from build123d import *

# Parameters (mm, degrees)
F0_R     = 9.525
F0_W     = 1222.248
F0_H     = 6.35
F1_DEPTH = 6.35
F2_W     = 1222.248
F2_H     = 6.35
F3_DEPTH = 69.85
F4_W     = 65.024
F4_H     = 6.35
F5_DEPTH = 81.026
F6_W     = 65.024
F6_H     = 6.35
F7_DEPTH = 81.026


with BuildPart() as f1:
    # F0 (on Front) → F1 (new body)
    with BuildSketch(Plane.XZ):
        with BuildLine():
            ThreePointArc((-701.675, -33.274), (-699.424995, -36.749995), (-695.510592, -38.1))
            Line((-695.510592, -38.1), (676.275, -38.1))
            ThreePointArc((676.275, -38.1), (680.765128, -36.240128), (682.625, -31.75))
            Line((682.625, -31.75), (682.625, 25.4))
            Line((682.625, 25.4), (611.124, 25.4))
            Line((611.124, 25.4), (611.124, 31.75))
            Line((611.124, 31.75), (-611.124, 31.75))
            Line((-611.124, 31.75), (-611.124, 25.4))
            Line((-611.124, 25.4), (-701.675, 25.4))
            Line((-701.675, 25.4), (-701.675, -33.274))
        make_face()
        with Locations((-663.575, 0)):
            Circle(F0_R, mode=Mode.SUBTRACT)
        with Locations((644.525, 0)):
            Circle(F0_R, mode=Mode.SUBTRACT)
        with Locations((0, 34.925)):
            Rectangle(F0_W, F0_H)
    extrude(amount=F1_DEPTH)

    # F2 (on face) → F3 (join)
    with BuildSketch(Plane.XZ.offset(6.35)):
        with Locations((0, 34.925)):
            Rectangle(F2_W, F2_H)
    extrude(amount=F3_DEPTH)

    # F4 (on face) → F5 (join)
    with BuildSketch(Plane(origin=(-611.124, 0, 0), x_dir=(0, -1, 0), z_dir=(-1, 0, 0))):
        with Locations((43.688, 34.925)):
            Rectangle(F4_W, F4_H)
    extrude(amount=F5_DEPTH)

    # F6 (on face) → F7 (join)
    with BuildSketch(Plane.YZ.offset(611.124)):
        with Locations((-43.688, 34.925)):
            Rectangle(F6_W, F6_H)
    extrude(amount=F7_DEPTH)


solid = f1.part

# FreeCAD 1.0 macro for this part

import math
import FreeCAD as App
import Part
import Sketcher
Q = App.Units.Quantity

doc = App.newDocument("Part")
body = doc.addObject("PartDesign::Body", "Body")

# Sketch on XZ plane
sketch1 = body.newObject("Sketcher::SketchObject", "Sketch")
sketch1.AttachmentSupport = (doc.getObject("XZ_Plane"), [""])
sketch1.MapMode = "FlatFace"
sketch1.addGeometry(Part.ArcOfCircle(Part.Circle(App.Vector(-695.510592, -31.75, 0), App.Vector(0, 0, 1), 6.35), math.radians(-166.113459), math.radians(-89.999999)), False)
sketch1.addGeometry(Part.LineSegment(App.Vector(-695.510592, -38.1, 0), App.Vector(676.275, -38.1, 0)), False)
sketch1.addGeometry(Part.ArcOfCircle(Part.Circle(App.Vector(676.275, -31.75, 0), App.Vector(0, 0, 1), 6.35), math.radians(-89.999998), math.radians(-0.000002)), False)
sketch1.addGeometry(Part.LineSegment(App.Vector(682.625, -31.75, 0), App.Vector(682.625, 25.4, 0)), False)
sketch1.addGeometry(Part.LineSegment(App.Vector(682.625, 25.4, 0), App.Vector(611.124, 25.4, 0)), False)
sketch1.addGeometry(Part.LineSegment(App.Vector(611.124, 25.4, 0), App.Vector(611.124, 38.1, 0)), False)
sketch1.addGeometry(Part.LineSegment(App.Vector(611.124, 38.1, 0), App.Vector(-611.124, 38.1, 0)), False)
sketch1.addGeometry(Part.LineSegment(App.Vector(-611.124, 38.1, 0), App.Vector(-611.124, 25.4, 0)), False)
sketch1.addGeometry(Part.LineSegment(App.Vector(-611.124, 25.4, 0), App.Vector(-701.675, 25.4, 0)), False)
sketch1.addGeometry(Part.LineSegment(App.Vector(-701.675, 25.4, 0), App.Vector(-701.675, -33.274, 0)), False)
sketch1.addGeometry(Part.Circle(App.Vector(-663.575, 0, 0), App.Vector(0, 0, 1), 9.525), False)
sketch1.addGeometry(Part.Circle(App.Vector(644.525, 0, 0), App.Vector(0, 0, 1), 9.525), False)
sketch1.addConstraint(Sketcher.Constraint("Tangent", 0, 2, 1, 1))
sketch1.addConstraint(Sketcher.Constraint("Tangent", 1, 2, 2, 1))
sketch1.addConstraint(Sketcher.Constraint("Tangent", 2, 2, 3, 1))
sketch1.addConstraint(Sketcher.Constraint("Coincident", 3, 2, 4, 1))
sketch1.addConstraint(Sketcher.Constraint("Coincident", 4, 2, 5, 1))
sketch1.addConstraint(Sketcher.Constraint("Coincident", 5, 2, 6, 1))
sketch1.addConstraint(Sketcher.Constraint("Coincident", 6, 2, 7, 1))
sketch1.addConstraint(Sketcher.Constraint("Coincident", 7, 2, 8, 1))
sketch1.addConstraint(Sketcher.Constraint("Coincident", 8, 2, 9, 1))
sketch1.addConstraint(Sketcher.Constraint("Coincident", 9, 2, 0, 1))
sketch1.addConstraint(Sketcher.Constraint("Horizontal", 1))
sketch1.addConstraint(Sketcher.Constraint("Vertical", 3))
sketch1.addConstraint(Sketcher.Constraint("Horizontal", 4))
sketch1.addConstraint(Sketcher.Constraint("Vertical", 5))
sketch1.addConstraint(Sketcher.Constraint("Horizontal", 6))
sketch1.addConstraint(Sketcher.Constraint("Vertical", 7))
sketch1.addConstraint(Sketcher.Constraint("Horizontal", 8))
sketch1.addConstraint(Sketcher.Constraint("Vertical", 9))
sketch1.addConstraint(Sketcher.Constraint("Equal", 0, 2))
sketch1.addConstraint(Sketcher.Constraint("Equal", 10, 11))
sketch1.addConstraint(Sketcher.Constraint("Symmetric", 4, 2, 7, 2, -2))
sketch1.addConstraint(Sketcher.Constraint("PointOnObject", 10, 3, -1))
sketch1.addConstraint(Sketcher.Constraint("PointOnObject", 11, 3, -1))
sketch1.addConstraint(Sketcher.Constraint("Diameter", 10, Q("0.75 in")))
sketch1.addConstraint(Sketcher.Constraint("Radius", 0, Q("0.25 in")))
sketch1.addConstraint(Sketcher.Constraint("DistanceY", 5, 1, 5, 2, Q("0.5 in")))
sketch1.addConstraint(Sketcher.Constraint("DistanceY", -1, 1, 3, 2, Q("1 in")))
sketch1.addConstraint(Sketcher.Constraint("DistanceX", 10, 3, 2, 2, Q("53 in")))
sketch1.addConstraint(Sketcher.Constraint("DistanceY", 0, 2, 6, 2, Q("3 in")))
sketch1.addConstraint(Sketcher.Constraint("DistanceX", 6, 2, 6, 1, Q("48.12 in")))
sketch1.addConstraint(Sketcher.Constraint("DistanceY", 9, 2, 9, 1, Q("2.31 in")))
sketch1.addConstraint(Sketcher.Constraint("DistanceX", 10, 3, 11, 3, Q("51.5 in")))
sketch1.addConstraint(Sketcher.Constraint("DistanceX", 8, 2, 10, 3, Q("1.5 in")))
sketch1.addConstraint(Sketcher.Constraint("DistanceX", 4, 2, 4, 1, Q("2.815 in")))
pad1 = body.newObject("PartDesign::Pad", "Pad")
pad1.Profile = sketch1
pad1.Length = Q("0.25 in")

# Sketch on XZ plane
sketch2 = body.newObject("Sketcher::SketchObject", "Sketch001")
sketch2.AttachmentSupport = (doc.getObject("XZ_Plane"), [""])
sketch2.MapMode = "FlatFace"
sketch2.AttachmentOffset = App.Placement(App.Vector(0, 0, 0.25 * 25.4), App.Rotation())
sketch2.addGeometry(Part.LineSegment(App.Vector(-611.124, 38.1, 0), App.Vector(-611.124, 31.75, 0)), False)
sketch2.addGeometry(Part.LineSegment(App.Vector(-611.124, 31.75, 0), App.Vector(611.124, 31.75, 0)), False)
sketch2.addGeometry(Part.LineSegment(App.Vector(611.124, 31.75, 0), App.Vector(611.124, 38.1, 0)), False)
sketch2.addGeometry(Part.LineSegment(App.Vector(611.124, 38.1, 0), App.Vector(-611.124, 38.1, 0)), False)
sketch2.addConstraint(Sketcher.Constraint("Coincident", 0, 2, 1, 1))
sketch2.addConstraint(Sketcher.Constraint("Coincident", 1, 2, 2, 1))
sketch2.addConstraint(Sketcher.Constraint("Coincident", 2, 2, 3, 1))
sketch2.addConstraint(Sketcher.Constraint("Coincident", 3, 2, 0, 1))
sketch2.addConstraint(Sketcher.Constraint("Vertical", 0))
sketch2.addConstraint(Sketcher.Constraint("Horizontal", 1))
sketch2.addConstraint(Sketcher.Constraint("Vertical", 2))
sketch2.addConstraint(Sketcher.Constraint("Horizontal", 3))
sketch2.addConstraint(Sketcher.Constraint("DistanceX", 1, 1, 1, 2, Q("48.12 in")))
sketch2.addConstraint(Sketcher.Constraint("DistanceY", 0, 2, 0, 1, Q("0.25 in")))
sketch2.addConstraint(Sketcher.Constraint("DistanceY", -1, 1, 2, 2, Q("1.5 in")))
sketch2.addConstraint(Sketcher.Constraint("DistanceX", 0, 2, -1, 1, Q("24.06 in")))
pad2 = body.newObject("PartDesign::Pad", "Pad001")
pad2.Profile = sketch2
pad2.Length = Q("2.75 in")

# Sketch on YZ plane
sketch3 = body.newObject("Sketcher::SketchObject", "Sketch002")
sketch3.AttachmentSupport = (doc.getObject("YZ_Plane"), [""])
sketch3.MapMode = "FlatFace"
sketch3.AttachmentOffset = App.Placement(App.Vector(0, 0, -24.06 * 25.4), App.Rotation())
sketch3.addGeometry(Part.LineSegment(App.Vector(-11.176, 38.1, 0), App.Vector(-11.176, 31.75, 0)), False)
sketch3.addGeometry(Part.LineSegment(App.Vector(-11.176, 31.75, 0), App.Vector(-76.2, 31.75, 0)), False)
sketch3.addGeometry(Part.LineSegment(App.Vector(-76.2, 31.75, 0), App.Vector(-76.2, 38.1, 0)), False)
sketch3.addGeometry(Part.LineSegment(App.Vector(-76.2, 38.1, 0), App.Vector(-11.176, 38.1, 0)), False)
sketch3.addConstraint(Sketcher.Constraint("Coincident", 0, 2, 1, 1))
sketch3.addConstraint(Sketcher.Constraint("Coincident", 1, 2, 2, 1))
sketch3.addConstraint(Sketcher.Constraint("Coincident", 2, 2, 3, 1))
sketch3.addConstraint(Sketcher.Constraint("Coincident", 3, 2, 0, 1))
sketch3.addConstraint(Sketcher.Constraint("Vertical", 0))
sketch3.addConstraint(Sketcher.Constraint("Horizontal", 1))
sketch3.addConstraint(Sketcher.Constraint("Vertical", 2))
sketch3.addConstraint(Sketcher.Constraint("Horizontal", 3))
sketch3.addConstraint(Sketcher.Constraint("DistanceX", 1, 2, -1, 1, Q("3 in")))
sketch3.addConstraint(Sketcher.Constraint("DistanceX", 1, 2, 1, 1, Q("2.56 in")))
sketch3.addConstraint(Sketcher.Constraint("DistanceY", 0, 2, 0, 1, Q("0.25 in")))
sketch3.addConstraint(Sketcher.Constraint("DistanceY", -1, 1, 2, 2, Q("1.5 in")))
pad3 = body.newObject("PartDesign::Pad", "Pad002")
pad3.Profile = sketch3
pad3.Length = Q("3.19 in")
pad3.Reversed = True

# Sketch on YZ plane
sketch4 = body.newObject("Sketcher::SketchObject", "Sketch003")
sketch4.AttachmentSupport = (doc.getObject("YZ_Plane"), [""])
sketch4.MapMode = "FlatFace"
sketch4.AttachmentOffset = App.Placement(App.Vector(0, 0, 24.06 * 25.4), App.Rotation())
sketch4.addGeometry(Part.LineSegment(App.Vector(-76.2, 38.1, 0), App.Vector(-76.2, 31.75, 0)), False)
sketch4.addGeometry(Part.LineSegment(App.Vector(-76.2, 31.75, 0), App.Vector(-11.176, 31.75, 0)), False)
sketch4.addGeometry(Part.LineSegment(App.Vector(-11.176, 31.75, 0), App.Vector(-11.176, 38.1, 0)), False)
sketch4.addGeometry(Part.LineSegment(App.Vector(-11.176, 38.1, 0), App.Vector(-76.2, 38.1, 0)), False)
sketch4.addConstraint(Sketcher.Constraint("Coincident", 0, 2, 1, 1))
sketch4.addConstraint(Sketcher.Constraint("Coincident", 1, 2, 2, 1))
sketch4.addConstraint(Sketcher.Constraint("Coincident", 2, 2, 3, 1))
sketch4.addConstraint(Sketcher.Constraint("Coincident", 3, 2, 0, 1))
sketch4.addConstraint(Sketcher.Constraint("Vertical", 0))
sketch4.addConstraint(Sketcher.Constraint("Horizontal", 1))
sketch4.addConstraint(Sketcher.Constraint("Vertical", 2))
sketch4.addConstraint(Sketcher.Constraint("Horizontal", 3))
sketch4.addConstraint(Sketcher.Constraint("DistanceX", 0, 2, -1, 1, Q("3 in")))
sketch4.addConstraint(Sketcher.Constraint("DistanceX", 1, 1, 1, 2, Q("2.56 in")))
sketch4.addConstraint(Sketcher.Constraint("DistanceY", 0, 2, 0, 1, Q("0.25 in")))
sketch4.addConstraint(Sketcher.Constraint("DistanceY", -1, 1, 2, 2, Q("1.5 in")))
pad4 = body.newObject("PartDesign::Pad", "Pad003")
pad4.Profile = sketch4
pad4.Length = Q("3.19 in")

doc.recompute()
